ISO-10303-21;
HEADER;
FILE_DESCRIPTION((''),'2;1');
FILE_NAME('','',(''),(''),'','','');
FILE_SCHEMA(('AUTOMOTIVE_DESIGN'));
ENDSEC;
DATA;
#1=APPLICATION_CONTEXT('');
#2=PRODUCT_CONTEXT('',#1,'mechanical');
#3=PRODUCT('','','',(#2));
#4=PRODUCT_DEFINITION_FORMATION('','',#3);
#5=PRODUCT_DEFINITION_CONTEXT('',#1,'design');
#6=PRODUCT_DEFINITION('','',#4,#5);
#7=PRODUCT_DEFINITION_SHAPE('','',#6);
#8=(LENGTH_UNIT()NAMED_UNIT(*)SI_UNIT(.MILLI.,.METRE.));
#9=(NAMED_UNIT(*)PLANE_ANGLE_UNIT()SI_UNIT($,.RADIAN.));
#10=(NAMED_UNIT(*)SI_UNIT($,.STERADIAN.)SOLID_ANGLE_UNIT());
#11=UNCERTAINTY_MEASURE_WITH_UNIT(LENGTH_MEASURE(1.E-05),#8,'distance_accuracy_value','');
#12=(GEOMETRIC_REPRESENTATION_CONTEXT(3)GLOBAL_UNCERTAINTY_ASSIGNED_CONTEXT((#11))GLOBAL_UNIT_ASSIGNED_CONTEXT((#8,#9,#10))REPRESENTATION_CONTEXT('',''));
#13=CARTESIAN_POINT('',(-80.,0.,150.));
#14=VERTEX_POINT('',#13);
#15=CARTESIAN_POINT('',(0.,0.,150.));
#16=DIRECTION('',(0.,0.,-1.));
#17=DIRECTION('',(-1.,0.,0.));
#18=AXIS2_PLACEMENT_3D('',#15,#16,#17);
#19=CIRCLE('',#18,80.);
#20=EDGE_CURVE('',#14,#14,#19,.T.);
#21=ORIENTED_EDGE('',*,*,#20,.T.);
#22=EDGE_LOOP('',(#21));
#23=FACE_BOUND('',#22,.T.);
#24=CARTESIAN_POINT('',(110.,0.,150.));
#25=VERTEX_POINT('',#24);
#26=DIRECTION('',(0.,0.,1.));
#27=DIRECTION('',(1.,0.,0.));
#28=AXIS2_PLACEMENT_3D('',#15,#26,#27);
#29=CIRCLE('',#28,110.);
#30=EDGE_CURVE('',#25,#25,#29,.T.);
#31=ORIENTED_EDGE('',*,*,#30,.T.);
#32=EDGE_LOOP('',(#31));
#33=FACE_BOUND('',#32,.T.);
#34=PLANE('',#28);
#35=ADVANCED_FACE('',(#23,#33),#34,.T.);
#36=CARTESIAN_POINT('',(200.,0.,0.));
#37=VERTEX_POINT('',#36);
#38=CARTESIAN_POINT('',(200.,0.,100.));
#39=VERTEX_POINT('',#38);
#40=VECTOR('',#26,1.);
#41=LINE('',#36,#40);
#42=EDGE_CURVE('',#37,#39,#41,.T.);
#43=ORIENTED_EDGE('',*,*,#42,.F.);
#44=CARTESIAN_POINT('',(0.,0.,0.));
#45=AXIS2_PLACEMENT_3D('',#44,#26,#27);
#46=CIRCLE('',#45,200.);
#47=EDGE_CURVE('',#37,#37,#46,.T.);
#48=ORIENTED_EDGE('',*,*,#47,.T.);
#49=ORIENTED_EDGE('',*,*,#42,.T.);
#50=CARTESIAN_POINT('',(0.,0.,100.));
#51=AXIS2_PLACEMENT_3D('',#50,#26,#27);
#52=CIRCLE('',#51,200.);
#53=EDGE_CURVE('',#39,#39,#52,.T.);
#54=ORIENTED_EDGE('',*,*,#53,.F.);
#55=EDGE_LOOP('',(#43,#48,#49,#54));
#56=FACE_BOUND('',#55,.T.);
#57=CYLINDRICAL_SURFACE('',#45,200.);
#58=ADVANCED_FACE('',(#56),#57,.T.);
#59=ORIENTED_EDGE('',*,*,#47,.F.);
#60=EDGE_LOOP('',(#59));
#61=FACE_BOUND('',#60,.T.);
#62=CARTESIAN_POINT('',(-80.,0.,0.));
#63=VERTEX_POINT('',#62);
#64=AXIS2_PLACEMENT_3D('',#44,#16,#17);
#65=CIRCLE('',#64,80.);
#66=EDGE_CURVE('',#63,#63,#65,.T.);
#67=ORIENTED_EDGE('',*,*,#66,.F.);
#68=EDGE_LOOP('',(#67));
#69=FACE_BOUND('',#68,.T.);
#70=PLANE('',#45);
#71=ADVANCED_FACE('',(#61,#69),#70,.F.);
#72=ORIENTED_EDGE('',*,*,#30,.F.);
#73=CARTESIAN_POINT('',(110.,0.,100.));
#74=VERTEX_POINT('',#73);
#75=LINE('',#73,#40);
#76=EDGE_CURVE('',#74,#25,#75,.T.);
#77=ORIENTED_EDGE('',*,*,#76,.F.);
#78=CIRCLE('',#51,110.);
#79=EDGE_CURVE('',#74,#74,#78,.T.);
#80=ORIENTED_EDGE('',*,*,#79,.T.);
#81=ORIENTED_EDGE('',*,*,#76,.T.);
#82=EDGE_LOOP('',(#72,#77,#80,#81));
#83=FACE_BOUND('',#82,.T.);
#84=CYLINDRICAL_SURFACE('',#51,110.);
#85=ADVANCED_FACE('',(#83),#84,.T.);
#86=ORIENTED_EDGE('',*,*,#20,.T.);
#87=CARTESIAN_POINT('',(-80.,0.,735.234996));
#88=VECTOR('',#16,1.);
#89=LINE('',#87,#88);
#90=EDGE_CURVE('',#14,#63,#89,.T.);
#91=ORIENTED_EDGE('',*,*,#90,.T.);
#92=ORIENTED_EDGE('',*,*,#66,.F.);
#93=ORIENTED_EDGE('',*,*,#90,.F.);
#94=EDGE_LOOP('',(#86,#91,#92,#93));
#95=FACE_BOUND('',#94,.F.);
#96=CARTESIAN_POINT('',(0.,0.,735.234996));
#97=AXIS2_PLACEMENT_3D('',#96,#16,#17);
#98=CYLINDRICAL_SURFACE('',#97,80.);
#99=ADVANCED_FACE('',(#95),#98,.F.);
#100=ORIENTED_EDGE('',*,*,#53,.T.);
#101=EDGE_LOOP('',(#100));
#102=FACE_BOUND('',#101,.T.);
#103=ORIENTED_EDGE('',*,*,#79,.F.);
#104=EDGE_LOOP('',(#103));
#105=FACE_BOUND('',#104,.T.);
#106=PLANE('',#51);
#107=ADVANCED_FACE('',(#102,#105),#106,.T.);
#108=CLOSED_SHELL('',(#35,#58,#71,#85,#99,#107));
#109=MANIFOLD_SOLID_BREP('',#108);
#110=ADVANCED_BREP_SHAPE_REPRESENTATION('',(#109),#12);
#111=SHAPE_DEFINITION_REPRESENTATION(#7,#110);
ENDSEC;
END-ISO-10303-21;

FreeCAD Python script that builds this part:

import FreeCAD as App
import Part
import Sketcher


def add_polygon(sketch, points):
    """Adds a closed chain of lines whose ends are joined by coincident constraints."""
    first, n = sketch.GeometryCount, len(points)
    for a, b in zip(points, points[1:] + points[:1]):
        sketch.addGeometry(Part.LineSegment(App.Vector(*a, 0), App.Vector(*b, 0)), False)
    for i in range(n):
        sketch.addConstraint(Sketcher.Constraint("Coincident", first + i, 2, first + (i + 1) % n, 1))

doc = App.newDocument("Part")
body = doc.addObject("PartDesign::Body", "Body")

# Sketch on XZ plane
sketch1 = doc.addObject("Sketcher::SketchObject", "Sketch")
body.addObject(sketch1)
sketch1.AttachmentSupport = (doc.XZ_Plane, [""])
sketch1.MapMode = "FlatFace"
add_polygon(sketch1, [(0, 150), (0, 0), (200, 0), (200, 100), (110, 100), (110, 150)])  # lines 0-5
sketch1.addConstraint([
    Sketcher.Constraint("Vertical", 0),
    Sketcher.Constraint("Horizontal", 1),
    Sketcher.Constraint("Vertical", 2),
    Sketcher.Constraint("Horizontal", 3),
    Sketcher.Constraint("Vertical", 4),
    Sketcher.Constraint("Horizontal", 5),
    Sketcher.Constraint("Coincident", 0, 2, -1, 1),
    Sketcher.Constraint("DistanceX", 1, 1, 1, 2, 200.0),
    Sketcher.Constraint("DistanceX", 3, 2, 3, 1, 90.0),
    Sketcher.Constraint("DistanceY", 0, 2, 0, 1, 150.0),
    Sketcher.Constraint("DistanceY", 2, 1, 2, 2, 100.0),
])
revolution = doc.addObject("PartDesign::Revolution", "Revolution")
body.addObject(revolution)
revolution.Profile = sketch1
revolution.ReferenceAxis = (sketch1, ["V_Axis"])
revolution.Angle = 360

# Sketch on XY plane
sketch2 = doc.addObject("Sketcher::SketchObject", "Sketch001")
body.addObject(sketch2)
sketch2.AttachmentSupport = (doc.XY_Plane, [""])
sketch2.MapMode = "FlatFace"
sketch2.AttachmentOffset = App.Placement(App.Vector(0, 0, 150), App.Rotation())
sketch2.addGeometry(Part.Circle(App.Vector(0, 0, 0), App.Vector(0, 0, 1), 80), False)
sketch2.addConstraint([
    Sketcher.Constraint("Coincident", 0, 3, -1, 1),
    Sketcher.Constraint("Diameter", 0, 160.0),
])
doc.recompute()
hole = doc.addObject("PartDesign::Hole", "Hole")
body.addObject(hole)
hole.Profile = sketch2
hole.ThreadType = "None"
hole.Diameter = 160
hole.DepthType = "ThroughAll"

doc.recompute()
